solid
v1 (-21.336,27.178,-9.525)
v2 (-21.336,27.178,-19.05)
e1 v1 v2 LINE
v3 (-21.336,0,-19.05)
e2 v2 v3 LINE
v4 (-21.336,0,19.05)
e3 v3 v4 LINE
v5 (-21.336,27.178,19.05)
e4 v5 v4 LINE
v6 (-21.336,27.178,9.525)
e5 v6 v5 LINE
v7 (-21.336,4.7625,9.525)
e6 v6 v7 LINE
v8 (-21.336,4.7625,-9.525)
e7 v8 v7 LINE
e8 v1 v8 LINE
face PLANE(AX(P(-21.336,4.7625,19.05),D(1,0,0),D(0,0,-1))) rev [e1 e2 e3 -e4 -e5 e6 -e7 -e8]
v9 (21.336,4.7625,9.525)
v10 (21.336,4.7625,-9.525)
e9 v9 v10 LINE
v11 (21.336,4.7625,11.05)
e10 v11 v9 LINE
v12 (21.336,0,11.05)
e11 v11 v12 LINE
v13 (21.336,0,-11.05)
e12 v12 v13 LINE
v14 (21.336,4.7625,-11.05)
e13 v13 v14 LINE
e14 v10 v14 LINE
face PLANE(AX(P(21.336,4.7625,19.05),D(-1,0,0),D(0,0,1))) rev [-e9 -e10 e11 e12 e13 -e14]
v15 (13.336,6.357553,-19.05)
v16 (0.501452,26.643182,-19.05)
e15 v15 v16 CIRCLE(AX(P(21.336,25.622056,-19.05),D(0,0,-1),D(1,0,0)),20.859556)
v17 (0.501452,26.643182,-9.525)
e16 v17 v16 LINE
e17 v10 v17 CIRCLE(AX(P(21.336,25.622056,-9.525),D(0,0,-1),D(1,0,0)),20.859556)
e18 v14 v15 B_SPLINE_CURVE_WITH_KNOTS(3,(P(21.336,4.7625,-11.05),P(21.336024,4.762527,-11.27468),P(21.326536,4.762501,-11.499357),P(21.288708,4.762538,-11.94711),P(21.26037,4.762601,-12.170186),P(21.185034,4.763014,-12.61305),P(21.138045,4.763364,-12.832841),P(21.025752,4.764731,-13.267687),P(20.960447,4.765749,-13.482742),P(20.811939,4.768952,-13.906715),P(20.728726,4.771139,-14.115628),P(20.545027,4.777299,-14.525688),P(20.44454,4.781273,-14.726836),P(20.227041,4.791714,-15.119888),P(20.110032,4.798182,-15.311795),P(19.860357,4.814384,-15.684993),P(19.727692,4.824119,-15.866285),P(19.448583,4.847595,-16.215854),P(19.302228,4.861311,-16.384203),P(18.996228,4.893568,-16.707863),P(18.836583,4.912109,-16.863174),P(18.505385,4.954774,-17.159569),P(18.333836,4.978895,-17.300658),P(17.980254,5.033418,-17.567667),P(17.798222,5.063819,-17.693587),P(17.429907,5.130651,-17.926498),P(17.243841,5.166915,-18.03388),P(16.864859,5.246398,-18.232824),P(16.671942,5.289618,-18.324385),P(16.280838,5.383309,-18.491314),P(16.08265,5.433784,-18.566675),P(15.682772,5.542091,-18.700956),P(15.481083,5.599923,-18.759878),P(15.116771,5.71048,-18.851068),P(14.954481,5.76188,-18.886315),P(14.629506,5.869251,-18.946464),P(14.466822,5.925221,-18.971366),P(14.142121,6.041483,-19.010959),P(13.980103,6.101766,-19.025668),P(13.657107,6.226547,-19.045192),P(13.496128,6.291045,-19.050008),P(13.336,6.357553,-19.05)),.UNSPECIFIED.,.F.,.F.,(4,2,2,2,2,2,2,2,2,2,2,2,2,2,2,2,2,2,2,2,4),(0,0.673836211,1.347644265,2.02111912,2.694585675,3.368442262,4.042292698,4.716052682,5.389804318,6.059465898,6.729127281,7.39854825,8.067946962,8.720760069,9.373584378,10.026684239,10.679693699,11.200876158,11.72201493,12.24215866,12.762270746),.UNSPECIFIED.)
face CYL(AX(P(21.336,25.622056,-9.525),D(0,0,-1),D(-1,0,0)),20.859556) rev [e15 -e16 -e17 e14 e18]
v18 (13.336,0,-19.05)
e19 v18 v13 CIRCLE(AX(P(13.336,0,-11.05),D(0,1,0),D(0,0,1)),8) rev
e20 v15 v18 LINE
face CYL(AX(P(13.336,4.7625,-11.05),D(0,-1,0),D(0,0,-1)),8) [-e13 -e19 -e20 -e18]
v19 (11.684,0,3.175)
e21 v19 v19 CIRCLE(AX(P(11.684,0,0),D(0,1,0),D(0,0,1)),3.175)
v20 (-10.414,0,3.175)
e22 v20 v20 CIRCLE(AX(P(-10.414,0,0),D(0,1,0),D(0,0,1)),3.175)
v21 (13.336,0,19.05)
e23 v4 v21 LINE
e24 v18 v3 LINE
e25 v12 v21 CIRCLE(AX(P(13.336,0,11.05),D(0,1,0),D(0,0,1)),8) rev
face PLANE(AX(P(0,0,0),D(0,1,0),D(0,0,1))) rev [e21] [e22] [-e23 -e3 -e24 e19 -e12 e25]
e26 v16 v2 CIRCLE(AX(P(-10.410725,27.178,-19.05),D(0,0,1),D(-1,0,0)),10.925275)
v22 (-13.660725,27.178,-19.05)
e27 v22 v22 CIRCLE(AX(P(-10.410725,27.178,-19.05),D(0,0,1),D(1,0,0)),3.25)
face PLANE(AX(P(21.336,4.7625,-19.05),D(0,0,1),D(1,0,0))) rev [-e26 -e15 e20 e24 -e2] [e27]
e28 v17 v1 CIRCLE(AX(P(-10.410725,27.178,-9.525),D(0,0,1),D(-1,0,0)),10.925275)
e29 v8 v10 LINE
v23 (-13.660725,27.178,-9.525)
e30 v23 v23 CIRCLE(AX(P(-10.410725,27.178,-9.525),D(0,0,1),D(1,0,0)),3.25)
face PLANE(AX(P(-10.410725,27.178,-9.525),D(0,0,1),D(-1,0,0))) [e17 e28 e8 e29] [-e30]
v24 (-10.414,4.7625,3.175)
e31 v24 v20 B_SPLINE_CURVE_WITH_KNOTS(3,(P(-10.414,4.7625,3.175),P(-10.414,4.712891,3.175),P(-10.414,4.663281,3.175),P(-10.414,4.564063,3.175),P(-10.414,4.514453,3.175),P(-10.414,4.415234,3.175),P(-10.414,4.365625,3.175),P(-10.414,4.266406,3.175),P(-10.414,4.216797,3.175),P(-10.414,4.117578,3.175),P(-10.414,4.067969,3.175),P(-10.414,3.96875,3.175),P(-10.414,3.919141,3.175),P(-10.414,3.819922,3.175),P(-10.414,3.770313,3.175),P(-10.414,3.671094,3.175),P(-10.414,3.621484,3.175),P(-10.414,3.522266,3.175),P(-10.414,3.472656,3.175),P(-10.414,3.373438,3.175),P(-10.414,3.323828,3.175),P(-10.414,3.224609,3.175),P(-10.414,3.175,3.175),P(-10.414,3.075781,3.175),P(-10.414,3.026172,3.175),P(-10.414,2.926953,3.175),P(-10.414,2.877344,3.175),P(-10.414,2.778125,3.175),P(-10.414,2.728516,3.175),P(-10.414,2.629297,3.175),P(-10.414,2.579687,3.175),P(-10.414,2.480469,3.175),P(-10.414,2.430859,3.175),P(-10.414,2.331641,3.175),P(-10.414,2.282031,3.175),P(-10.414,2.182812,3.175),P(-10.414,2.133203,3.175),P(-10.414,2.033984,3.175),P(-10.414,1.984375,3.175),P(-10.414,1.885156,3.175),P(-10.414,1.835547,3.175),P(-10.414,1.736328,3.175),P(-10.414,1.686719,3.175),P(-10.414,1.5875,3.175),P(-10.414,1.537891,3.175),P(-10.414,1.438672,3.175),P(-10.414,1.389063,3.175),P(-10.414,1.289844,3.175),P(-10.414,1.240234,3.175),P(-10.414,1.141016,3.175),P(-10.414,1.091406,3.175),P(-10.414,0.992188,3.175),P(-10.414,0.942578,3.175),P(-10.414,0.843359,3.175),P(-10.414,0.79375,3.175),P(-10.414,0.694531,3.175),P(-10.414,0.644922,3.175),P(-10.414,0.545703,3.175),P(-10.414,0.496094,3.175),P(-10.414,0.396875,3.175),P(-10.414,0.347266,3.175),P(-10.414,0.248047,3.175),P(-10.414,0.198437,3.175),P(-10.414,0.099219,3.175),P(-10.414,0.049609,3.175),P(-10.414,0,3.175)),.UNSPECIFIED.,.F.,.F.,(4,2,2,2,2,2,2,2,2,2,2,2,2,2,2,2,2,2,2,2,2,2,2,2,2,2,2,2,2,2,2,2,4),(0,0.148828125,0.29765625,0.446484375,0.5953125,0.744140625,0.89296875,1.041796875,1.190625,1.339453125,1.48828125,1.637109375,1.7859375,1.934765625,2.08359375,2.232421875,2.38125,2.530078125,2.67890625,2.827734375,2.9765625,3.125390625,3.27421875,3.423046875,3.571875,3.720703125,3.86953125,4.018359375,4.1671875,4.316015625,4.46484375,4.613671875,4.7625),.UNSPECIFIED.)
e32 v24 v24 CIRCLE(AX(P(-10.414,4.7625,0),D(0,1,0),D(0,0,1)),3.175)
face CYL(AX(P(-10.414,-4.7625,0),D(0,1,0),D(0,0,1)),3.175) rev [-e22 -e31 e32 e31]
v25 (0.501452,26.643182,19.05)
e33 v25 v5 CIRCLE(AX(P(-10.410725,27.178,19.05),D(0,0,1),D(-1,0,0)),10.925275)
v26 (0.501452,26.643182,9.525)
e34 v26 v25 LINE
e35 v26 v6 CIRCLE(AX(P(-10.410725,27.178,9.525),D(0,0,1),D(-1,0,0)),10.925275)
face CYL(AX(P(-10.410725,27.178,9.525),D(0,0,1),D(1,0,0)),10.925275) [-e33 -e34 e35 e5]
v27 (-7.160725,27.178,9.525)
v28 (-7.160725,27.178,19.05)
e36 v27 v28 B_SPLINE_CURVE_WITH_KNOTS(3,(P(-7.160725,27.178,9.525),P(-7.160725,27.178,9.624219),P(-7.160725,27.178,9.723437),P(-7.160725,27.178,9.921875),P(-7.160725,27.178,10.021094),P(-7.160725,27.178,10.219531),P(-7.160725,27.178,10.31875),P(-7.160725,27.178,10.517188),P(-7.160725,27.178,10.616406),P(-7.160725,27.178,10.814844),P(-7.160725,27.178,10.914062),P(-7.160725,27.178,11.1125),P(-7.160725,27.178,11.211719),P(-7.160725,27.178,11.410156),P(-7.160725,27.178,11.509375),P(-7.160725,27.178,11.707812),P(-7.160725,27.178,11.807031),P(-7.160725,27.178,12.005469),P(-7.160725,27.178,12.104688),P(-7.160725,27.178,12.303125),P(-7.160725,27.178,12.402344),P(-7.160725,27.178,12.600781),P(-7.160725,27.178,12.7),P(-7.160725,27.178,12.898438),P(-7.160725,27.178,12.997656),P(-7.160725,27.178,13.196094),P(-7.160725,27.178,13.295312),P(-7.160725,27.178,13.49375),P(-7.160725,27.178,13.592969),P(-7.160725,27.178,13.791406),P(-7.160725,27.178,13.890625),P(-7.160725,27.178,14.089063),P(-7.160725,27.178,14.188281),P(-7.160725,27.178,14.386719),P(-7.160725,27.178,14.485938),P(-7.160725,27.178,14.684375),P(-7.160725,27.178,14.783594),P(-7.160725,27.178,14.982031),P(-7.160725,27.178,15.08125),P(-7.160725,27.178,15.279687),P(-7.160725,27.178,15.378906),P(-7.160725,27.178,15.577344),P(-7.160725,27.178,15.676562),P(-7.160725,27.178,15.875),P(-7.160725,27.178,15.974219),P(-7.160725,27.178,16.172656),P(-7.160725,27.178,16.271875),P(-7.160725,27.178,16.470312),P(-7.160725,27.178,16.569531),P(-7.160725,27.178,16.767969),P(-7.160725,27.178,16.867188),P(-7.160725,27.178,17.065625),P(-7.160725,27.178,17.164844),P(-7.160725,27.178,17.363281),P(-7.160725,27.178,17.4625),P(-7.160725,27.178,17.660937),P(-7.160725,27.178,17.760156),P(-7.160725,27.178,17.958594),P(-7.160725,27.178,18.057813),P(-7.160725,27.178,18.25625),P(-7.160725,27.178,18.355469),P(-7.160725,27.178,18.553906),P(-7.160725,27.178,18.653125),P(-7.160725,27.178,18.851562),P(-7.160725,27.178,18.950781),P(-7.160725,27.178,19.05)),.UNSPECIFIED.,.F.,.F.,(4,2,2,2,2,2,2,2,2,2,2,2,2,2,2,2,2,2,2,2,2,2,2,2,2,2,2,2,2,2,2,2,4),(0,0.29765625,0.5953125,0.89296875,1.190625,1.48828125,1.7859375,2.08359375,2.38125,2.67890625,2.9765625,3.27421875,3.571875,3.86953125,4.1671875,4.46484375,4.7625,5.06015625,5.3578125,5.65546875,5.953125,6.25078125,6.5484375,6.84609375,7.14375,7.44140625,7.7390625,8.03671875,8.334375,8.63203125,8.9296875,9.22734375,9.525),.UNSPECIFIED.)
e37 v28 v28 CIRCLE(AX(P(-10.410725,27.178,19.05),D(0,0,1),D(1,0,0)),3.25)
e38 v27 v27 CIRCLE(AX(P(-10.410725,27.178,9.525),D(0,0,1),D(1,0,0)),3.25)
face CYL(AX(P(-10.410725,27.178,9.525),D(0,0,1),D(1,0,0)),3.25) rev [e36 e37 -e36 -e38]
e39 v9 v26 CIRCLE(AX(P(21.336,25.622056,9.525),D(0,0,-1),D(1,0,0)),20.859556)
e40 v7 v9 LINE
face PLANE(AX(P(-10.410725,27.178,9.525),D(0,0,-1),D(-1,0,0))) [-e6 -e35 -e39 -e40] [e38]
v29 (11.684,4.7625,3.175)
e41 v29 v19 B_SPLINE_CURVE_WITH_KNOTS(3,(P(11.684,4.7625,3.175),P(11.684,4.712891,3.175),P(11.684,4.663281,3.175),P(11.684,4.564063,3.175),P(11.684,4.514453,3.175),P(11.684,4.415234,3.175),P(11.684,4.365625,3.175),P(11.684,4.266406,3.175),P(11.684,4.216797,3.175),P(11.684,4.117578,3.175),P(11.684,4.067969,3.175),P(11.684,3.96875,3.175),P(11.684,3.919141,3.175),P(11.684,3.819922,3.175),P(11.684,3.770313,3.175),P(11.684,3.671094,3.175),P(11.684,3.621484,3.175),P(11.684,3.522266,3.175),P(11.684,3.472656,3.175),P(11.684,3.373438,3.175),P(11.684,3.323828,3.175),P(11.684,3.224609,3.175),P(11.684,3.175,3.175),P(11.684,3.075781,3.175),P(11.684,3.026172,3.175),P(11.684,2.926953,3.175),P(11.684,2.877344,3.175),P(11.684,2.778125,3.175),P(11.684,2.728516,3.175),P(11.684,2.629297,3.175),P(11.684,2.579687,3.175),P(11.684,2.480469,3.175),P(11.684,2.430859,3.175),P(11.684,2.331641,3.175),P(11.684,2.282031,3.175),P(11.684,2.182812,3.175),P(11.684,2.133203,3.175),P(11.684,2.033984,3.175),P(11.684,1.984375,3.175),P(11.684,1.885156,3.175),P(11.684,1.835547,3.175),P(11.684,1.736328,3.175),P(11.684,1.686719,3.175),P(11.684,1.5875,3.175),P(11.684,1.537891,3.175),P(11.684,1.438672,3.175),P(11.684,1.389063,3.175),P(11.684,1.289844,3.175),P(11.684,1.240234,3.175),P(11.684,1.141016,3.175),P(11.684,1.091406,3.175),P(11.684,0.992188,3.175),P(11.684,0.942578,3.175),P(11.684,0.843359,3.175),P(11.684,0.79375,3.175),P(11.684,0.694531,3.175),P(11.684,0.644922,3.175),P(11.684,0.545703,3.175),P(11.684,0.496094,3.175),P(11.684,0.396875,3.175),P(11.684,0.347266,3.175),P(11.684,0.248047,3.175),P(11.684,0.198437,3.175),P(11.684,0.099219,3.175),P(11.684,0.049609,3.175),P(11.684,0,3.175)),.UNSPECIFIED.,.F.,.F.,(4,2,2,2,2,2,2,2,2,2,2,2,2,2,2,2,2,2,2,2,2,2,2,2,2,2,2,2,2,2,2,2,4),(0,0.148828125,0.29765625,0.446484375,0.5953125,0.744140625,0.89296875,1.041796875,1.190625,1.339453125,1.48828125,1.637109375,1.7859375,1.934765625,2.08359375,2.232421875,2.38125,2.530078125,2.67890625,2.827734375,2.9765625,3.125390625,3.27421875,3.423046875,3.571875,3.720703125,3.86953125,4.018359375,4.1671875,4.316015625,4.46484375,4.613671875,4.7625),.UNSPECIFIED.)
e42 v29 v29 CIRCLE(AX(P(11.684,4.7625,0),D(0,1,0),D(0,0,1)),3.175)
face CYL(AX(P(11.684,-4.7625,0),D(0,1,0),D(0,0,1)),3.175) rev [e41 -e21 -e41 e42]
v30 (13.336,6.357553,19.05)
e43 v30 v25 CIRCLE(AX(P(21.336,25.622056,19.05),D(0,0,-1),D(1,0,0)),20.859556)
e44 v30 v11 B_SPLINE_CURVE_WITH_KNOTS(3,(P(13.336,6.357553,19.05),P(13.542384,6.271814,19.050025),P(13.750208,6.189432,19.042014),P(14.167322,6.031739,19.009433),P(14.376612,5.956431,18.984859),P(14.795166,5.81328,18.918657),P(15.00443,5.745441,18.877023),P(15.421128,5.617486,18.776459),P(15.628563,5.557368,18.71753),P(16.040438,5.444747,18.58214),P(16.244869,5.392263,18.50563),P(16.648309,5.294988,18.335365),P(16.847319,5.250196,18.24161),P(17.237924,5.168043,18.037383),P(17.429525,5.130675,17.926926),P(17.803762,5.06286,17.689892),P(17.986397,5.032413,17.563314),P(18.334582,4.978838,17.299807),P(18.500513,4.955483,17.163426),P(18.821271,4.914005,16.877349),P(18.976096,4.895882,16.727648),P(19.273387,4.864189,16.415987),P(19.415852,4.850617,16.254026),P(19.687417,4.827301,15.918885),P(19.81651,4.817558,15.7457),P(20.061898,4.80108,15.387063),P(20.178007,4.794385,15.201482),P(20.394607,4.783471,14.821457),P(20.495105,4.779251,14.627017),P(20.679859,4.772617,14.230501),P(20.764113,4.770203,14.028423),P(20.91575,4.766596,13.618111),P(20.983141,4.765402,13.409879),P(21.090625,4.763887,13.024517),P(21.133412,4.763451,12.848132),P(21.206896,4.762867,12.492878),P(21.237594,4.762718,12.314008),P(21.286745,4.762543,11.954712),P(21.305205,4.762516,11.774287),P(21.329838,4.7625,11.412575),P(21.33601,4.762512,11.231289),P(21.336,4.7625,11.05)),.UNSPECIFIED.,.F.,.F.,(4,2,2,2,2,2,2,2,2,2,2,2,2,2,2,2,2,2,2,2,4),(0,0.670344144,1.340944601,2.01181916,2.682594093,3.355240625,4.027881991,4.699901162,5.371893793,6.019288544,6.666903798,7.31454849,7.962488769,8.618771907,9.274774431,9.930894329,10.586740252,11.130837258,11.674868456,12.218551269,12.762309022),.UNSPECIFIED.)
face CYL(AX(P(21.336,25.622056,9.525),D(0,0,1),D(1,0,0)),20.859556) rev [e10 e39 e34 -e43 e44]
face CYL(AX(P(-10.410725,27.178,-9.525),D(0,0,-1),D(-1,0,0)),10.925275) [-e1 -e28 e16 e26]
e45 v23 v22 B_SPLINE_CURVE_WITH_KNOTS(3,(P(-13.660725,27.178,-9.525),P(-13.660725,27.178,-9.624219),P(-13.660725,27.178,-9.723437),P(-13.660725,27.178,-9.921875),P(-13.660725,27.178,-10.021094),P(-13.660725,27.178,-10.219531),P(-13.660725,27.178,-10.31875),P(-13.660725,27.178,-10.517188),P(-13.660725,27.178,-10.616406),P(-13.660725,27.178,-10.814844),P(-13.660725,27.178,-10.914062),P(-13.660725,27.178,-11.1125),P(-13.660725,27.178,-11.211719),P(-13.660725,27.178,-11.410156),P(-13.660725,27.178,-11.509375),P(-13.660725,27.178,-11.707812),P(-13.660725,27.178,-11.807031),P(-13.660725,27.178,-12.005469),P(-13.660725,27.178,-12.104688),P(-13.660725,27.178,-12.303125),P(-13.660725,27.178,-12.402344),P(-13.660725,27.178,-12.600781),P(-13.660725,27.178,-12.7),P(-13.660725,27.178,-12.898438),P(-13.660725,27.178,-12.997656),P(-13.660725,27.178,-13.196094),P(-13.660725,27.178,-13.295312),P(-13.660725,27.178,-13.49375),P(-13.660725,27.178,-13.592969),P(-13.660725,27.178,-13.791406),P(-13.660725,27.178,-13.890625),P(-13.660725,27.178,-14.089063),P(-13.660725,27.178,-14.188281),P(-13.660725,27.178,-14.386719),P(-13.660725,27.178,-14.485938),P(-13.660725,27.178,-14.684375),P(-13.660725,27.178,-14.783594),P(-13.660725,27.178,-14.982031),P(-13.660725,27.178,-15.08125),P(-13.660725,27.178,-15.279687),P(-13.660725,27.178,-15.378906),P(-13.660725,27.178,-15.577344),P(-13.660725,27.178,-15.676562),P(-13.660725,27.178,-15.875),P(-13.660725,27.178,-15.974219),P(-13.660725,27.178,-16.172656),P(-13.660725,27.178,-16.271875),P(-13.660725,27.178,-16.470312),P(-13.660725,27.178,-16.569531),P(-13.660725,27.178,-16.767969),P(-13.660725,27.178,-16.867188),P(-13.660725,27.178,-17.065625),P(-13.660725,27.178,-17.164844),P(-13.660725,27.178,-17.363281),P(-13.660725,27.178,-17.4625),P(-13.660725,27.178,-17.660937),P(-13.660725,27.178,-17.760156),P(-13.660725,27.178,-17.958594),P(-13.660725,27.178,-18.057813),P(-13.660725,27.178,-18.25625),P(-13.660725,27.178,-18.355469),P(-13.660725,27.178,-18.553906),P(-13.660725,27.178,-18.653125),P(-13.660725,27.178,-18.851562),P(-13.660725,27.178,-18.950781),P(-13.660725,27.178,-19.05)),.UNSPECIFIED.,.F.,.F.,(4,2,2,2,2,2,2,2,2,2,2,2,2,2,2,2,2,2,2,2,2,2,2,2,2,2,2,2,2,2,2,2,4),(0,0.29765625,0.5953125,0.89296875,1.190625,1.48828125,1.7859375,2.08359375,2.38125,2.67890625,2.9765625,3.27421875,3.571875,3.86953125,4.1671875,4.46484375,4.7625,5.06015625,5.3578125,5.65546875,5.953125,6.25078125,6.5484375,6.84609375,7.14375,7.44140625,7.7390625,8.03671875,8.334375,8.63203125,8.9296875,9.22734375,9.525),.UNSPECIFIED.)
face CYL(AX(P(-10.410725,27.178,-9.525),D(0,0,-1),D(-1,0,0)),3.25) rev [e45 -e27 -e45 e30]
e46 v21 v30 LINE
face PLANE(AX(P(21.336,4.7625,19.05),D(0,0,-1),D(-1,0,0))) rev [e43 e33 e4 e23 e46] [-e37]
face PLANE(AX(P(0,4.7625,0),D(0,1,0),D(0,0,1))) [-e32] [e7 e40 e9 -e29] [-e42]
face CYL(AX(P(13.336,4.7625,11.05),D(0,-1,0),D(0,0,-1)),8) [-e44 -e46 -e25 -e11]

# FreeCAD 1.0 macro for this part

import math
import FreeCAD as App
import Part
import Sketcher
Q = App.Units.Quantity


def edges_at(feature, points):
    """Names of the edges that pass closest to the given points."""
    edges = feature.Shape.Edges
    near = lambda p: min(range(len(edges)), key=lambda i: edges[i].distToShape(Part.Vertex(*p))[0])
    return sorted({f"Edge{near(p) + 1}" for p in points})

doc = App.newDocument("Part")
body = doc.addObject("PartDesign::Body", "Body")

# Sketch on XZ plane
sketch1 = body.newObject("Sketcher::SketchObject", "Sketch")
sketch1.AttachmentSupport = (doc.getObject("XZ_Plane"), [""])
sketch1.MapMode = "FlatFace"
sketch1.addGeometry(Part.LineSegment(App.Vector(-21.336, -19.05, 0), App.Vector(-21.336, 19.05, 0)), False)
sketch1.addGeometry(Part.LineSegment(App.Vector(-21.336, 19.05, 0), App.Vector(21.336, 19.05, 0)), False)
sketch1.addGeometry(Part.LineSegment(App.Vector(21.336, 19.05, 0), App.Vector(21.336, -19.05, 0)), False)
sketch1.addGeometry(Part.LineSegment(App.Vector(21.336, -19.05, 0), App.Vector(-21.336, -19.05, 0)), False)
sketch1.addConstraint(Sketcher.Constraint("Coincident", 0, 2, 1, 1))
sketch1.addConstraint(Sketcher.Constraint("Coincident", 1, 2, 2, 1))
sketch1.addConstraint(Sketcher.Constraint("Coincident", 2, 2, 3, 1))
sketch1.addConstraint(Sketcher.Constraint("Coincident", 3, 2, 0, 1))
sketch1.addConstraint(Sketcher.Constraint("Vertical", 0))
sketch1.addConstraint(Sketcher.Constraint("Horizontal", 1))
sketch1.addConstraint(Sketcher.Constraint("Vertical", 2))
sketch1.addConstraint(Sketcher.Constraint("Horizontal", 3))
sketch1.addConstraint(Sketcher.Constraint("Symmetric", 0, 2, 2, 2, -1, 1))
sketch1.addConstraint(Sketcher.Constraint("DistanceY", 0, 1, 0, 2, Q("1.5 in")))
sketch1.addConstraint(Sketcher.Constraint("DistanceX", 1, 1, 1, 2, Q("1.68 in")))
pad1 = body.newObject("PartDesign::Pad", "Pad")
pad1.Profile = sketch1
pad1.Length = Q("0.1875 in")
pad1.Reversed = True

# Sketch on XY plane
sketch2 = body.newObject("Sketcher::SketchObject", "Sketch001")
sketch2.AttachmentSupport = (doc.getObject("XY_Plane"), [""])
sketch2.MapMode = "FlatFace"
sketch2.AttachmentOffset = App.Placement(App.Vector(0, 0, 0.75 * 25.4), App.Rotation())
sketch2.addGeometry(Part.LineSegment(App.Vector(-21.336, 27.178, 0), App.Vector(-21.336, 4.7625, 0)), False)
sketch2.addGeometry(Part.LineSegment(App.Vector(-21.336, 4.7625, 0), App.Vector(21.336, 4.7625, 0)), False)
sketch2.addGeometry(Part.ArcOfCircle(Part.Circle(App.Vector(21.336, 25.622056, 0), App.Vector(0, 0, 1), 20.859556), math.radians(177.194113), math.radians(270)), False)
sketch2.addGeometry(Part.ArcOfCircle(Part.Circle(App.Vector(-10.410725, 27.178, 0), App.Vector(0, 0, 1), 10.925275), math.radians(-2.805887), math.radians(180)), False)
sketch2.addGeometry(Part.Circle(App.Vector(-10.410725, 27.178, 0), App.Vector(0, 0, 1), 3.25), False)
sketch2.addConstraint(Sketcher.Constraint("Coincident", 0, 2, 1, 1))
sketch2.addConstraint(Sketcher.Constraint("Tangent", 1, 2, 2, 2))
sketch2.addConstraint(Sketcher.Constraint("Tangent", 2, 1, 3, 1))
sketch2.addConstraint(Sketcher.Constraint("Tangent", 3, 2, 0, 1))
sketch2.addConstraint(Sketcher.Constraint("Vertical", 0))
sketch2.addConstraint(Sketcher.Constraint("Horizontal", 1))
sketch2.addConstraint(Sketcher.Constraint("Coincident", 4, 3, 3, 3))
sketch2.addConstraint(Sketcher.Constraint("DistanceX", 1, 1, 1, 2, Q("1.68 in")))
sketch2.addConstraint(Sketcher.Constraint("Diameter", 4, 6.5))
sketch2.addConstraint(Sketcher.Constraint("DistanceX", -1, 1, 2, 3, Q("0.84 in")))
sketch2.addConstraint(Sketcher.Constraint("DistanceY", -1, 1, 3, 3, Q("1.07 in")))
sketch2.addConstraint(Sketcher.Constraint("DistanceY", 0, 2, 0, 1, Q("0.8825 in")))
sketch2.addConstraint(Sketcher.Constraint("Radius", 2, 20.859556))
pad2 = body.newObject("PartDesign::Pad", "Pad001")
pad2.Profile = sketch2
pad2.Length = Q("0.375 in")
pad2.Reversed = True
doc.recompute()

mirrored = body.newObject("PartDesign::Mirrored", "Mirrored")
mirrored.Originals = [pad2]
mirrored.MirrorPlane = (doc.getObject("XY_Plane"), [""])
body.Tip = mirrored

# Sketch on XZ plane
sketch3 = body.newObject("Sketcher::SketchObject", "Sketch002")
sketch3.AttachmentSupport = (doc.getObject("XZ_Plane"), [""])
sketch3.MapMode = "FlatFace"
sketch3.AttachmentOffset = App.Placement(App.Vector(0, 0, -0.1875 * 25.4), App.Rotation())
sketch3.addGeometry(Part.Circle(App.Vector(-10.414, 0, 0), App.Vector(0, 0, 1), 3.175), False)
sketch3.addGeometry(Part.Circle(App.Vector(11.684, 0, 0), App.Vector(0, 0, 1), 3.175), False)
sketch3.addConstraint(Sketcher.Constraint("Equal", 0, 1))
sketch3.addConstraint(Sketcher.Constraint("PointOnObject", 0, 3, -1))
sketch3.addConstraint(Sketcher.Constraint("PointOnObject", 1, 3, -1))
sketch3.addConstraint(Sketcher.Constraint("Diameter", 0, Q("0.25 in")))
sketch3.addConstraint(Sketcher.Constraint("DistanceX", 0, 3, -1, 1, Q("0.41 in")))
sketch3.addConstraint(Sketcher.Constraint("DistanceX", -1, 1, 1, 3, Q("0.46 in")))
pocket1 = body.newObject("PartDesign::Pocket", "Pocket")
pocket1.Profile = sketch3
pocket1.Length = Q("0.375 in")
pocket1.Reversed = True
doc.recompute()

fillet = body.newObject("PartDesign::Fillet", "Fillet")
fillet.Base = (pocket1, edges_at(pocket1, [(21.336, 2.381, -19.05), (21.336, 2.381, 19.05)]))
fillet.Radius = 8

doc.recompute()
